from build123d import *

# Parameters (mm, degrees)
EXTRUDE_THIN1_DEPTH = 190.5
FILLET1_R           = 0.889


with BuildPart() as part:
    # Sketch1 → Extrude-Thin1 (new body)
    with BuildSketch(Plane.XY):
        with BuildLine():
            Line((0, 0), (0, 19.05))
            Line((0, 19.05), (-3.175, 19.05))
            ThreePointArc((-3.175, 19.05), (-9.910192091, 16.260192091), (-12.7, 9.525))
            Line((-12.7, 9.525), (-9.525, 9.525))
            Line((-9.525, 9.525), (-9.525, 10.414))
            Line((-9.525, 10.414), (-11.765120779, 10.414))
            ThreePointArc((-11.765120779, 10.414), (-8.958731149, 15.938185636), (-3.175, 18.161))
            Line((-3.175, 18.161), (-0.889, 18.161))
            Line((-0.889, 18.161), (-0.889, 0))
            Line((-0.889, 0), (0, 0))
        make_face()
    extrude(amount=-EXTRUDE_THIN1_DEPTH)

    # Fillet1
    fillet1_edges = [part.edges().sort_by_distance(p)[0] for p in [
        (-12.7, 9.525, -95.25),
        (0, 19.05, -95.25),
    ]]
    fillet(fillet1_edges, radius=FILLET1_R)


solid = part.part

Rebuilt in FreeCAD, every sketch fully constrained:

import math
import FreeCAD as App
import Part
import Sketcher

V = App.Vector
Q = App.Units.Quantity


def edges_at(feature, points):
    """Names of the edges that pass closest to the given points."""
    edges = feature.Shape.Edges
    near = lambda p: min(range(len(edges)), key=lambda i: edges[i].distToShape(Part.Vertex(*p))[0])
    return sorted({f"Edge{near(p) + 1}" for p in points})

doc = App.newDocument("Part")
params = doc.addObject("Spreadsheet::Sheet", "Params")
for row, (alias, value) in enumerate([
    ("sketch1_radius", "0.34 in"),
    ("sketch1_radius2", "0.375 in"),
    ("sketch1_width", "0.09 in"),
    ("sketch1_height", "0.75 in"),
    ("pad1_length", "7.5 in"),
    ("fillet_radius", "0.035 in"),
], start=1):
    params.set(f"A{row}", alias)
    params.set(f"B{row}", "=" + value)
    params.setAlias(f"B{row}", alias)

body = doc.addObject("PartDesign::Body", "Body")

sketch1 = body.newObject("Sketcher::SketchObject", "Sketch")
sketch1.AttachmentSupport = (doc.getObject("XY_Plane"), [""])
sketch1.MapMode = "FlatFace"
sketch1.addGeometry([
    Part.LineSegment(V(0, 0, 0), V(0, 19.05, 0)),
    Part.LineSegment(V(0, 19.05, 0), V(-3.175, 19.05, 0)),
    Part.ArcOfCircle(Part.Circle(V(-3.175, 9.525, 0), V(0, 0, 1), 9.525), math.radians(90), math.radians(180)),
    Part.LineSegment(V(-12.7, 9.525, 0), V(-9.525, 9.525, 0)),
    Part.LineSegment(V(-9.525, 9.525, 0), V(-9.525, 10.414, 0)),
    Part.LineSegment(V(-9.525, 10.414, 0), V(-11.765121, 10.414, 0)),
    Part.ArcOfCircle(Part.Circle(V(-3.175, 9.525, 0), V(0, 0, 1), 8.636), math.radians(90), math.radians(174.091438)),
    Part.LineSegment(V(-3.175, 18.161, 0), V(-0.889, 18.161, 0)),
    Part.LineSegment(V(-0.889, 18.161, 0), V(-0.889, 0, 0)),
    Part.LineSegment(V(-0.889, 0, 0), V(0, 0, 0)),
], False)
sketch1.addConstraint([
    Sketcher.Constraint("Coincident", 0, 2, 1, 1),
    Sketcher.Constraint("Tangent", 1, 2, 2, 1),
    Sketcher.Constraint("Coincident", 2, 2, 3, 1),
    Sketcher.Constraint("Coincident", 3, 2, 4, 1),
    Sketcher.Constraint("Coincident", 4, 2, 5, 1),
    Sketcher.Constraint("Coincident", 5, 2, 6, 2),
    Sketcher.Constraint("Tangent", 6, 1, 7, 1),
    Sketcher.Constraint("Coincident", 7, 2, 8, 1),
    Sketcher.Constraint("Coincident", 8, 2, 9, 1),
    Sketcher.Constraint("Coincident", 9, 2, 0, 1),
    Sketcher.Constraint("Vertical", 0),
    Sketcher.Constraint("Horizontal", 1),
    Sketcher.Constraint("Horizontal", 3),
    Sketcher.Constraint("Vertical", 4),
    Sketcher.Constraint("Horizontal", 5),
    Sketcher.Constraint("Horizontal", 7),
    Sketcher.Constraint("Vertical", 8),
    Sketcher.Constraint("Horizontal", 9),
    Sketcher.Constraint("Coincident", 9, 2, -1, 1),
    Sketcher.Constraint("Coincident", 6, 3, 2, 3),
    Sketcher.Constraint("Horizontal", 6, 3, 2, 2),
    Sketcher.Constraint("Equal", 1, 3),
    Sketcher.Constraint("Equal", 9, 4),
    Sketcher.Constraint("Radius", 6, Q("0.34 in")),
    Sketcher.Constraint("Radius", 2, Q("0.375 in")),
    Sketcher.Constraint("DistanceX", 7, 1, 7, 2, Q("0.09 in")),
    Sketcher.Constraint("DistanceY", 0, 1, 0, 2, Q("0.75 in")),
    Sketcher.Constraint("DistanceX", 2, 2, -1, 1, Q("0.5 in")),
])
sketch1.setExpression("Constraints[23]", "Params.sketch1_radius")
sketch1.setExpression("Constraints[24]", "Params.sketch1_radius2")
sketch1.setExpression("Constraints[25]", "Params.sketch1_width")
sketch1.setExpression("Constraints[26]", "Params.sketch1_height")
pad1 = body.newObject("PartDesign::Pad", "Pad")
pad1.Profile = sketch1
pad1.setExpression("Length", "Params.pad1_length")
pad1.Reversed = True
doc.recompute()

fillet = body.newObject("PartDesign::Fillet", "Fillet")
fillet.Base = (pad1, edges_at(pad1, [(-12.7, 9.525, -95.25), (0, 19.05, -95.25)]))
fillet.setExpression("Radius", "Params.fillet_radius")

doc.recompute()
